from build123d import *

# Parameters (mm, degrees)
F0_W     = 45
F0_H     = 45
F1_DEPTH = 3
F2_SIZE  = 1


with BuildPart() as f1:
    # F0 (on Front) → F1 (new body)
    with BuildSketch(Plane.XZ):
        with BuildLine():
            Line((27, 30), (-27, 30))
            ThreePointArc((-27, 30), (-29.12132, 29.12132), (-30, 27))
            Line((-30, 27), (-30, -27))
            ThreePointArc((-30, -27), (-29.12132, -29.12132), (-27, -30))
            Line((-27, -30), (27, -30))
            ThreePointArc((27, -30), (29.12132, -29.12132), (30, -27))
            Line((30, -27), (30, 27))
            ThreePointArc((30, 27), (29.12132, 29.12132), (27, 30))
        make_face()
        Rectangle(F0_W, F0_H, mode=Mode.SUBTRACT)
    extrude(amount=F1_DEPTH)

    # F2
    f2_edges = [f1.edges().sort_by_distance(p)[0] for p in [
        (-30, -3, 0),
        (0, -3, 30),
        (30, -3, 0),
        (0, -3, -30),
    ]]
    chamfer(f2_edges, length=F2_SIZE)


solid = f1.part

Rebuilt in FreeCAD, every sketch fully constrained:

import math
import FreeCAD as App
import Part
import Sketcher

V = App.Vector


def edges_at(feature, points):
    """Names of the edges that pass closest to the given points."""
    edges = feature.Shape.Edges
    near = lambda p: min(range(len(edges)), key=lambda i: edges[i].distToShape(Part.Vertex(*p))[0])
    return sorted({f"Edge{near(p) + 1}" for p in points})


def add_polygon(sketch, points):
    """Adds a closed chain of lines whose ends are joined by coincident constraints."""
    first, n = sketch.GeometryCount, len(points)
    for a, b in zip(points, points[1:] + points[:1]):
        sketch.addGeometry(Part.LineSegment(App.Vector(*a, 0), App.Vector(*b, 0)), False)
    for i in range(n):
        sketch.addConstraint(Sketcher.Constraint("Coincident", first + i, 2, first + (i + 1) % n, 1))

doc = App.newDocument("Part")
params = doc.addObject("Spreadsheet::Sheet", "Params")
for row, (alias, value) in enumerate([
    ("sketch1_radius", "3.000001 mm"),
    ("sketch1_width", "54 mm"),
    ("sketch1_width2", "45 mm"),
    ("pad1_length", "3 mm"),
    ("chamfer_size", "1 mm"),
], start=1):
    params.set(f"A{row}", alias)
    params.set(f"B{row}", "=" + value)
    params.setAlias(f"B{row}", alias)

body = doc.addObject("PartDesign::Body", "Body")

sketch1 = doc.addObject("Sketcher::SketchObject", "Sketch")
body.addObject(sketch1)
sketch1.AttachmentSupport = (doc.XZ_Plane, [""])
sketch1.MapMode = "FlatFace"
sketch1.addGeometry(Part.LineSegment(V(27, 30, 0), V(-27, 30, 0)), False)
sketch1.addGeometry(Part.ArcOfCircle(Part.Circle(V(-27, 27, 0), V(0, 0, 1), 3), math.radians(90), math.radians(180)), False)
sketch1.addGeometry(Part.LineSegment(V(-30, 27, 0), V(-30, -27, 0)), False)
sketch1.addGeometry(Part.ArcOfCircle(Part.Circle(V(-27, -27, 0), V(0, 0, 1), 3), math.radians(-180), math.radians(-90)), False)
sketch1.addGeometry(Part.LineSegment(V(-27, -30, 0), V(27, -30, 0)), False)
sketch1.addGeometry(Part.ArcOfCircle(Part.Circle(V(27, -27, 0), V(0, 0, 1), 3), math.radians(-90), math.radians(0)), False)
sketch1.addGeometry(Part.LineSegment(V(30, -27, 0), V(30, 27, 0)), False)
sketch1.addGeometry(Part.ArcOfCircle(Part.Circle(V(27, 27, 0), V(0, 0, 1), 3), math.radians(0), math.radians(90)), False)
add_polygon(sketch1, [(22.5, -22.5), (-22.5, -22.5), (-22.5, 22.5), (22.5, 22.5)])
sketch1.addConstraint([
    Sketcher.Constraint("Tangent", 0, 2, 1, 1),
    Sketcher.Constraint("Tangent", 1, 2, 2, 1),
    Sketcher.Constraint("Tangent", 2, 2, 3, 1),
    Sketcher.Constraint("Tangent", 3, 2, 4, 1),
    Sketcher.Constraint("Tangent", 4, 2, 5, 1),
    Sketcher.Constraint("Tangent", 5, 2, 6, 1),
    Sketcher.Constraint("Tangent", 6, 2, 7, 1),
    Sketcher.Constraint("Tangent", 7, 2, 0, 1),
    Sketcher.Constraint("Horizontal", 0),
    Sketcher.Constraint("Vertical", 2),
    Sketcher.Constraint("Horizontal", 4),
    Sketcher.Constraint("Vertical", 6),
    Sketcher.Constraint("Horizontal", 8),
    Sketcher.Constraint("Vertical", 9),
    Sketcher.Constraint("Horizontal", 10),
    Sketcher.Constraint("Vertical", 11),
    Sketcher.Constraint("Equal", 1, 3),
    Sketcher.Constraint("Equal", 3, 5),
    Sketcher.Constraint("Equal", 5, 7),
    Sketcher.Constraint("Symmetric", 1, 3, 5, 3, -1, 1),
    Sketcher.Constraint("Symmetric", 8, 2, 10, 2, -1, 1),
    Sketcher.Constraint("Equal", 4, 2),
    Sketcher.Constraint("Equal", 10, 9),
    Sketcher.Constraint("Radius", 1, 3.000001),
    Sketcher.Constraint("DistanceX", 0, 2, 0, 1, 54.0),
    Sketcher.Constraint("DistanceX", 8, 2, 8, 1, 45.0),
])
sketch1.setExpression("Constraints[27]", "Params.sketch1_radius")
sketch1.setExpression("Constraints[28]", "Params.sketch1_width")
sketch1.setExpression("Constraints[29]", "Params.sketch1_width2")
pad1 = doc.addObject("PartDesign::Pad", "Pad")
body.addObject(pad1)
pad1.Profile = sketch1
pad1.setExpression("Length", "Params.pad1_length")
doc.recompute()

chamfer = doc.addObject("PartDesign::Chamfer", "Chamfer")
body.addObject(chamfer)
chamfer.Base = (pad1, edges_at(pad1, [
    (-30, -3, 0),
    (0, -3, 30),
    (30, -3, 0),
    (0, -3, -30),
]))
chamfer.setExpression("Size", "Params.chamfer_size")

doc.recompute()
